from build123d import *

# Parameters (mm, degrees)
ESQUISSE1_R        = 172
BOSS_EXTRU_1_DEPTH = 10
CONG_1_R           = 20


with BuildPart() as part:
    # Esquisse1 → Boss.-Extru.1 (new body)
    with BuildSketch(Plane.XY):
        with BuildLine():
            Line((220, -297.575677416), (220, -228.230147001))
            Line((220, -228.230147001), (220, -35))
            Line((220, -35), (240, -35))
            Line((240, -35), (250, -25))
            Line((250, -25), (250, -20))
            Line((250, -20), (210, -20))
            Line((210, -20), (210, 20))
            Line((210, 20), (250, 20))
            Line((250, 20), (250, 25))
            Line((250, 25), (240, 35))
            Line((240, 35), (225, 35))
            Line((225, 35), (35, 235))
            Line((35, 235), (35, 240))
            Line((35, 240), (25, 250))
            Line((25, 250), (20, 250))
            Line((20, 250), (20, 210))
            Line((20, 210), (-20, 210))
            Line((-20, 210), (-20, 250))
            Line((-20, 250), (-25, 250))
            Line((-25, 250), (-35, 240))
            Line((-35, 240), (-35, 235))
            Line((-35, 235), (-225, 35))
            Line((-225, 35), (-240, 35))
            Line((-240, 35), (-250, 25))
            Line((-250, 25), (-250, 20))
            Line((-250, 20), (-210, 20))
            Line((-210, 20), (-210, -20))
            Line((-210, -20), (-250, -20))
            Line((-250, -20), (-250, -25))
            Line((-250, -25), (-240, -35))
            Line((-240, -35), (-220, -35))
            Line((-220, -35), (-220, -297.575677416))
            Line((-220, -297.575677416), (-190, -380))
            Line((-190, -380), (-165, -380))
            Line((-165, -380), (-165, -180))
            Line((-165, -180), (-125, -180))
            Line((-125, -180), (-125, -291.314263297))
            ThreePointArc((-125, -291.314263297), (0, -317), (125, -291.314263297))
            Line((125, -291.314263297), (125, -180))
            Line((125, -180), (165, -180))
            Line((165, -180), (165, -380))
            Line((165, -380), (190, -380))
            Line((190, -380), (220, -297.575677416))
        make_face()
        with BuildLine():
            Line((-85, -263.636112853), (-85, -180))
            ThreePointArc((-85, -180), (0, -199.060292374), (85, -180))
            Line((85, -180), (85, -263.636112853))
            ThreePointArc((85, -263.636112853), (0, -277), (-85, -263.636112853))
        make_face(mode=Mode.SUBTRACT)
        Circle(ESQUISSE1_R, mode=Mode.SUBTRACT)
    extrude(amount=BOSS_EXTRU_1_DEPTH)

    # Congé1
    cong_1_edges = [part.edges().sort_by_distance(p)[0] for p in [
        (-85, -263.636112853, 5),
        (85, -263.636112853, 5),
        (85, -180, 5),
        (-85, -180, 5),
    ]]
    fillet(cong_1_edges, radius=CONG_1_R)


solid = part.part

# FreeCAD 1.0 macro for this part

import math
import FreeCAD as App
import Part
import Sketcher

V = App.Vector
Q = App.Units.Quantity


def edges_at(feature, points):
    """Names of the edges that pass closest to the given points."""
    edges = feature.Shape.Edges
    near = lambda p: min(range(len(edges)), key=lambda i: edges[i].distToShape(Part.Vertex(*p))[0])
    return sorted({f"Edge{near(p) + 1}" for p in points})

doc = App.newDocument("Part")
params = doc.addObject("Spreadsheet::Sheet", "Params")
for row, (alias, value) in enumerate([
    ("sketch1_diameter", "344 mm"),
    ("sketch1_radius", "317 mm"),
    ("sketch1_radius2", "277 mm"),
    ("sketch1_width", "20 mm"),
    ("sketch1_width2", "40 mm"),
    ("pad1_length", "10 mm"),
    ("fillet_radius", "20 mm"),
], start=1):
    params.set(f"A{row}", alias)
    params.set(f"B{row}", "=" + value)
    params.setAlias(f"B{row}", alias)

body = doc.addObject("PartDesign::Body", "Body")

# Sketch on XY plane
sketch1 = doc.addObject("Sketcher::SketchObject", "Sketch")
body.addObject(sketch1)
sketch1.AttachmentSupport = (doc.XY_Plane, [""])
sketch1.MapMode = "FlatFace"
sketch1.addGeometry([
    Part.LineSegment(V(220, -298, 0), V(220, -35, 0)),  # 0
    Part.LineSegment(V(220, -35, 0), V(240, -35, 0)),  # 1
    Part.LineSegment(V(240, -35, 0), V(250, -25, 0)),  # 2
    Part.LineSegment(V(250, -25, 0), V(250, -20, 0)),  # 3
    Part.LineSegment(V(250, -20, 0), V(210, -20, 0)),  # 4
    Part.LineSegment(V(210, -20, 0), V(210, 20, 0)),  # 5
    Part.LineSegment(V(210, 20, 0), V(250, 20, 0)),  # 6
    Part.LineSegment(V(250, 20, 0), V(250, 25, 0)),  # 7
    Part.LineSegment(V(250, 25, 0), V(240, 35, 0)),  # 8
    Part.LineSegment(V(240, 35, 0), V(225, 35, 0)),  # 9
    Part.LineSegment(V(225, 35, 0), V(35, 235, 0)),  # 10
    Part.LineSegment(V(35, 235, 0), V(35, 240, 0)),  # 11
    Part.LineSegment(V(35, 240, 0), V(25, 250, 0)),  # 12
    Part.LineSegment(V(25, 250, 0), V(20, 250, 0)),  # 13
    Part.LineSegment(V(20, 250, 0), V(20, 210, 0)),  # 14
    Part.LineSegment(V(20, 210, 0), V(-20, 210, 0)),  # 15
    Part.LineSegment(V(-20, 210, 0), V(-20, 250, 0)),  # 16
    Part.LineSegment(V(-20, 250, 0), V(-25, 250, 0)),  # 17
    Part.LineSegment(V(-25, 250, 0), V(-35, 240, 0)),  # 18
    Part.LineSegment(V(-35, 240, 0), V(-35, 235, 0)),  # 19
    Part.LineSegment(V(-35, 235, 0), V(-225, 35, 0)),  # 20
    Part.LineSegment(V(-225, 35, 0), V(-240, 35, 0)),  # 21
    Part.LineSegment(V(-240, 35, 0), V(-250, 25, 0)),  # 22
    Part.LineSegment(V(-250, 25, 0), V(-250, 20, 0)),  # 23
    Part.LineSegment(V(-250, 20, 0), V(-210, 20, 0)),  # 24
    Part.LineSegment(V(-210, 20, 0), V(-210, -20, 0)),  # 25
    Part.LineSegment(V(-210, -20, 0), V(-250, -20, 0)),  # 26
    Part.LineSegment(V(-250, -20, 0), V(-250, -25, 0)),  # 27
    Part.LineSegment(V(-250, -25, 0), V(-240, -35, 0)),  # 28
    Part.LineSegment(V(-240, -35, 0), V(-220, -35, 0)),  # 29
    Part.LineSegment(V(-220, -35, 0), V(-220, -298, 0)),  # 30
    Part.LineSegment(V(-220, -298, 0), V(-190, -380, 0)),  # 31
    Part.LineSegment(V(-190, -380, 0), V(-165, -380, 0)),  # 32
    Part.LineSegment(V(-165, -380, 0), V(-165, -180, 0)),  # 33
    Part.LineSegment(V(-165, -180, 0), V(-125, -180, 0)),  # 34
    Part.LineSegment(V(-125, -180, 0), V(-125, -291, 0)),  # 35
    Part.ArcOfCircle(Part.Circle(V(0, 0, 0), V(0, 0, 1), 317), math.radians(-113), math.radians(-67)),  # 36
    Part.LineSegment(V(125, -291, 0), V(125, -180, 0)),  # 37
    Part.LineSegment(V(125, -180, 0), V(165, -180, 0)),  # 38
    Part.LineSegment(V(165, -180, 0), V(165, -380, 0)),  # 39
    Part.LineSegment(V(165, -380, 0), V(190, -380, 0)),  # 40
    Part.LineSegment(V(190, -380, 0), V(220, -298, 0)),  # 41
    Part.ArcOfCircle(Part.Circle(V(0, 0, 0), V(0, 0, 1), 277), math.radians(-108), math.radians(-72)),  # 42
    Part.LineSegment(V(-85, -264, 0), V(-85, -180, 0)),  # 43
    Part.ArcOfCircle(Part.Circle(V(0, 0, 0), V(0, 0, 1), 199), math.radians(-115), math.radians(-65)),  # 44
    Part.LineSegment(V(85, -180, 0), V(85, -264, 0)),  # 45
    Part.Circle(V(0, 0, 0), V(0, 0, 1), 172),  # 46
], False)
sketch1.addConstraint([
    Sketcher.Constraint("Coincident", 0, 2, 1, 1),
    Sketcher.Constraint("Coincident", 1, 2, 2, 1),
    Sketcher.Constraint("Coincident", 2, 2, 3, 1),
    Sketcher.Constraint("Coincident", 3, 2, 4, 1),
    Sketcher.Constraint("Coincident", 4, 2, 5, 1),
    Sketcher.Constraint("Coincident", 5, 2, 6, 1),
    Sketcher.Constraint("Coincident", 6, 2, 7, 1),
    Sketcher.Constraint("Coincident", 7, 2, 8, 1),
    Sketcher.Constraint("Coincident", 8, 2, 9, 1),
    Sketcher.Constraint("Coincident", 9, 2, 10, 1),
    Sketcher.Constraint("Coincident", 10, 2, 11, 1),
    Sketcher.Constraint("Coincident", 11, 2, 12, 1),
    Sketcher.Constraint("Coincident", 12, 2, 13, 1),
    Sketcher.Constraint("Coincident", 13, 2, 14, 1),
    Sketcher.Constraint("Coincident", 14, 2, 15, 1),
    Sketcher.Constraint("Coincident", 15, 2, 16, 1),
    Sketcher.Constraint("Coincident", 16, 2, 17, 1),
    Sketcher.Constraint("Coincident", 17, 2, 18, 1),
    Sketcher.Constraint("Coincident", 18, 2, 19, 1),
    Sketcher.Constraint("Coincident", 19, 2, 20, 1),
    Sketcher.Constraint("Coincident", 20, 2, 21, 1),
    Sketcher.Constraint("Coincident", 21, 2, 22, 1),
    Sketcher.Constraint("Coincident", 22, 2, 23, 1),
    Sketcher.Constraint("Coincident", 23, 2, 24, 1),
    Sketcher.Constraint("Coincident", 24, 2, 25, 1),
    Sketcher.Constraint("Coincident", 25, 2, 26, 1),
    Sketcher.Constraint("Coincident", 26, 2, 27, 1),
    Sketcher.Constraint("Coincident", 27, 2, 28, 1),
    Sketcher.Constraint("Coincident", 28, 2, 29, 1),
    Sketcher.Constraint("Coincident", 29, 2, 30, 1),
    Sketcher.Constraint("Coincident", 30, 2, 31, 1),
    Sketcher.Constraint("Coincident", 31, 2, 32, 1),
    Sketcher.Constraint("Coincident", 32, 2, 33, 1),
    Sketcher.Constraint("Coincident", 33, 2, 34, 1),
    Sketcher.Constraint("Coincident", 34, 2, 35, 1),
    Sketcher.Constraint("Coincident", 35, 2, 36, 1),
    Sketcher.Constraint("Coincident", 36, 2, 37, 1),
    Sketcher.Constraint("Coincident", 37, 2, 38, 1),
    Sketcher.Constraint("Coincident", 38, 2, 39, 1),
    Sketcher.Constraint("Coincident", 39, 2, 40, 1),
    Sketcher.Constraint("Coincident", 40, 2, 41, 1),
    Sketcher.Constraint("Coincident", 41, 2, 0, 1),
    Sketcher.Constraint("Coincident", 42, 1, 43, 1),
    Sketcher.Constraint("Coincident", 43, 2, 44, 1),
    Sketcher.Constraint("Coincident", 44, 2, 45, 1),
    Sketcher.Constraint("Coincident", 45, 2, 42, 2),
    Sketcher.Constraint("Vertical", 0),
    Sketcher.Constraint("Horizontal", 1),
    Sketcher.Constraint("Vertical", 3),
    Sketcher.Constraint("Horizontal", 4),
    Sketcher.Constraint("Vertical", 5),
    Sketcher.Constraint("Horizontal", 6),
    Sketcher.Constraint("Vertical", 7),
    Sketcher.Constraint("Horizontal", 9),
    Sketcher.Constraint("Vertical", 11),
    Sketcher.Constraint("Horizontal", 13),
    Sketcher.Constraint("Vertical", 14),
    Sketcher.Constraint("Horizontal", 15),
    Sketcher.Constraint("Vertical", 16),
    Sketcher.Constraint("Horizontal", 17),
    Sketcher.Constraint("Vertical", 19),
    Sketcher.Constraint("Horizontal", 21),
    Sketcher.Constraint("Vertical", 23),
    Sketcher.Constraint("Horizontal", 24),
    Sketcher.Constraint("Vertical", 25),
    Sketcher.Constraint("Horizontal", 26),
    Sketcher.Constraint("Vertical", 27),
    Sketcher.Constraint("Horizontal", 29),
    Sketcher.Constraint("Vertical", 30),
    Sketcher.Constraint("Horizontal", 32),
    Sketcher.Constraint("Vertical", 33),
    Sketcher.Constraint("Horizontal", 34),
    Sketcher.Constraint("Vertical", 35),
    Sketcher.Constraint("Vertical", 37),
    Sketcher.Constraint("Horizontal", 38),
    Sketcher.Constraint("Vertical", 39),
    Sketcher.Constraint("Horizontal", 40),
    Sketcher.Constraint("Vertical", 43),
    Sketcher.Constraint("Vertical", 45),
    Sketcher.Constraint("Coincident", 36, 3, -1, 1),
    Sketcher.Constraint("Coincident", 42, 3, -1, 1),
    Sketcher.Constraint("Coincident", 44, 3, -1, 1),
    Sketcher.Constraint("Coincident", 46, 3, -1, 1),
    Sketcher.Constraint("Symmetric", 1, 2, 21, 2, -1, 1),
    Sketcher.Constraint("Symmetric", 2, 2, 22, 2, -1, 1),
    Sketcher.Constraint("Symmetric", 4, 2, 24, 2, -1, 1),
    Sketcher.Constraint("Symmetric", 6, 2, 26, 2, -1, 1),
    Sketcher.Constraint("Symmetric", 8, 2, 28, 2, -1, 1),
    Sketcher.Constraint("Symmetric", 13, 2, 16, 2, -2),
    Sketcher.Constraint("Symmetric", 11, 2, 18, 2, -2),
    Sketcher.Constraint("Symmetric", 9, 2, 20, 2, -2),
    Sketcher.Constraint("Symmetric", 7, 2, 22, 2, -2),
    Sketcher.Constraint("Symmetric", 34, 2, 37, 2, -2),
    Sketcher.Constraint("Symmetric", 32, 2, 39, 2, -2),
    Sketcher.Constraint("Symmetric", 30, 2, 41, 2, -2),
    Sketcher.Constraint("Perpendicular", 2, 8),
    Sketcher.Constraint("Parallel", 8, 12),
    Sketcher.Constraint("Perpendicular", 12, 18),
    Sketcher.Constraint("Perpendicular", 22, 28),
    Sketcher.Constraint("Horizontal", 10, 2, 19, 2),
    Sketcher.Constraint("Horizontal", 6, 2, 23, 2),
    Sketcher.Constraint("Horizontal", 38, 2, 43, 2),
    Sketcher.Constraint("Horizontal", 43, 2, 44, 2),
    Sketcher.Constraint("Vertical", 1, 2, 8, 2),
    Sketcher.Constraint("Equal", 6, 15),
    Sketcher.Constraint("Equal", 26, 34),
    Sketcher.Constraint("Equal", 32, 40),
    Sketcher.Constraint("Equal", 17, 3),
    Sketcher.Constraint("Equal", 38, 5),
    Sketcher.Constraint("Equal", 7, 11),
    Sketcher.Constraint("Equal", 5, 14),
    Sketcher.Constraint("Equal", 8, 12),
    Sketcher.Constraint("Diameter", 46, 344.0),
    Sketcher.Constraint("Radius", 36, 317.0),
    Sketcher.Constraint("Radius", 42, 277.0),
    Sketcher.Constraint("DistanceX", 1, 1, 1, 2, 20.0),
    Sketcher.Constraint("DistanceX", 4, 2, 4, 1, 40.0),
    Sketcher.Constraint("DistanceX", 9, 2, 9, 1, 15.0),
    Sketcher.Constraint("DistanceX", 13, 2, 13, 1, 5.0),
    Sketcher.Constraint("DistanceX", 32, 1, 32, 2, 25.0),
    Sketcher.Constraint("DistanceY", 33, 1, 33, 2, 200.0),
    Sketcher.Constraint("Angle", 31, Q("-70 deg")),
    Sketcher.Constraint("DistanceX", -1, 1, 0, 2, 220.0),
    Sketcher.Constraint("DistanceY", 0, 2, -1, 1, 35.0),
    Sketcher.Constraint("DistanceY", -1, 1, 10, 2, 235.0),
    Sketcher.Constraint("DistanceX", 31, 2, -1, 1, 190.0),
    Sketcher.Constraint("DistanceY", 31, 2, -1, 1, 380.0),
    Sketcher.Constraint("DistanceX", 43, 2, -1, 1, 85.0),
])
sketch1.setExpression("Constraints[112]", "Params.sketch1_diameter")
sketch1.setExpression("Constraints[113]", "Params.sketch1_radius")
sketch1.setExpression("Constraints[114]", "Params.sketch1_radius2")
sketch1.setExpression("Constraints[115]", "Params.sketch1_width")
sketch1.setExpression("Constraints[116]", "Params.sketch1_width2")
pad1 = doc.addObject("PartDesign::Pad", "Pad")
body.addObject(pad1)
pad1.Profile = sketch1
pad1.setExpression("Length", "Params.pad1_length")
doc.recompute()

fillet = doc.addObject("PartDesign::Fillet", "Fillet")
body.addObject(fillet)
fillet.Base = (pad1, edges_at(pad1, [
    (-85, -263.636, 5),
    (85, -263.636, 5),
    (85, -180, 5),
    (-85, -180, 5),
]))
fillet.setExpression("Radius", "Params.fillet_radius")

doc.recompute()
